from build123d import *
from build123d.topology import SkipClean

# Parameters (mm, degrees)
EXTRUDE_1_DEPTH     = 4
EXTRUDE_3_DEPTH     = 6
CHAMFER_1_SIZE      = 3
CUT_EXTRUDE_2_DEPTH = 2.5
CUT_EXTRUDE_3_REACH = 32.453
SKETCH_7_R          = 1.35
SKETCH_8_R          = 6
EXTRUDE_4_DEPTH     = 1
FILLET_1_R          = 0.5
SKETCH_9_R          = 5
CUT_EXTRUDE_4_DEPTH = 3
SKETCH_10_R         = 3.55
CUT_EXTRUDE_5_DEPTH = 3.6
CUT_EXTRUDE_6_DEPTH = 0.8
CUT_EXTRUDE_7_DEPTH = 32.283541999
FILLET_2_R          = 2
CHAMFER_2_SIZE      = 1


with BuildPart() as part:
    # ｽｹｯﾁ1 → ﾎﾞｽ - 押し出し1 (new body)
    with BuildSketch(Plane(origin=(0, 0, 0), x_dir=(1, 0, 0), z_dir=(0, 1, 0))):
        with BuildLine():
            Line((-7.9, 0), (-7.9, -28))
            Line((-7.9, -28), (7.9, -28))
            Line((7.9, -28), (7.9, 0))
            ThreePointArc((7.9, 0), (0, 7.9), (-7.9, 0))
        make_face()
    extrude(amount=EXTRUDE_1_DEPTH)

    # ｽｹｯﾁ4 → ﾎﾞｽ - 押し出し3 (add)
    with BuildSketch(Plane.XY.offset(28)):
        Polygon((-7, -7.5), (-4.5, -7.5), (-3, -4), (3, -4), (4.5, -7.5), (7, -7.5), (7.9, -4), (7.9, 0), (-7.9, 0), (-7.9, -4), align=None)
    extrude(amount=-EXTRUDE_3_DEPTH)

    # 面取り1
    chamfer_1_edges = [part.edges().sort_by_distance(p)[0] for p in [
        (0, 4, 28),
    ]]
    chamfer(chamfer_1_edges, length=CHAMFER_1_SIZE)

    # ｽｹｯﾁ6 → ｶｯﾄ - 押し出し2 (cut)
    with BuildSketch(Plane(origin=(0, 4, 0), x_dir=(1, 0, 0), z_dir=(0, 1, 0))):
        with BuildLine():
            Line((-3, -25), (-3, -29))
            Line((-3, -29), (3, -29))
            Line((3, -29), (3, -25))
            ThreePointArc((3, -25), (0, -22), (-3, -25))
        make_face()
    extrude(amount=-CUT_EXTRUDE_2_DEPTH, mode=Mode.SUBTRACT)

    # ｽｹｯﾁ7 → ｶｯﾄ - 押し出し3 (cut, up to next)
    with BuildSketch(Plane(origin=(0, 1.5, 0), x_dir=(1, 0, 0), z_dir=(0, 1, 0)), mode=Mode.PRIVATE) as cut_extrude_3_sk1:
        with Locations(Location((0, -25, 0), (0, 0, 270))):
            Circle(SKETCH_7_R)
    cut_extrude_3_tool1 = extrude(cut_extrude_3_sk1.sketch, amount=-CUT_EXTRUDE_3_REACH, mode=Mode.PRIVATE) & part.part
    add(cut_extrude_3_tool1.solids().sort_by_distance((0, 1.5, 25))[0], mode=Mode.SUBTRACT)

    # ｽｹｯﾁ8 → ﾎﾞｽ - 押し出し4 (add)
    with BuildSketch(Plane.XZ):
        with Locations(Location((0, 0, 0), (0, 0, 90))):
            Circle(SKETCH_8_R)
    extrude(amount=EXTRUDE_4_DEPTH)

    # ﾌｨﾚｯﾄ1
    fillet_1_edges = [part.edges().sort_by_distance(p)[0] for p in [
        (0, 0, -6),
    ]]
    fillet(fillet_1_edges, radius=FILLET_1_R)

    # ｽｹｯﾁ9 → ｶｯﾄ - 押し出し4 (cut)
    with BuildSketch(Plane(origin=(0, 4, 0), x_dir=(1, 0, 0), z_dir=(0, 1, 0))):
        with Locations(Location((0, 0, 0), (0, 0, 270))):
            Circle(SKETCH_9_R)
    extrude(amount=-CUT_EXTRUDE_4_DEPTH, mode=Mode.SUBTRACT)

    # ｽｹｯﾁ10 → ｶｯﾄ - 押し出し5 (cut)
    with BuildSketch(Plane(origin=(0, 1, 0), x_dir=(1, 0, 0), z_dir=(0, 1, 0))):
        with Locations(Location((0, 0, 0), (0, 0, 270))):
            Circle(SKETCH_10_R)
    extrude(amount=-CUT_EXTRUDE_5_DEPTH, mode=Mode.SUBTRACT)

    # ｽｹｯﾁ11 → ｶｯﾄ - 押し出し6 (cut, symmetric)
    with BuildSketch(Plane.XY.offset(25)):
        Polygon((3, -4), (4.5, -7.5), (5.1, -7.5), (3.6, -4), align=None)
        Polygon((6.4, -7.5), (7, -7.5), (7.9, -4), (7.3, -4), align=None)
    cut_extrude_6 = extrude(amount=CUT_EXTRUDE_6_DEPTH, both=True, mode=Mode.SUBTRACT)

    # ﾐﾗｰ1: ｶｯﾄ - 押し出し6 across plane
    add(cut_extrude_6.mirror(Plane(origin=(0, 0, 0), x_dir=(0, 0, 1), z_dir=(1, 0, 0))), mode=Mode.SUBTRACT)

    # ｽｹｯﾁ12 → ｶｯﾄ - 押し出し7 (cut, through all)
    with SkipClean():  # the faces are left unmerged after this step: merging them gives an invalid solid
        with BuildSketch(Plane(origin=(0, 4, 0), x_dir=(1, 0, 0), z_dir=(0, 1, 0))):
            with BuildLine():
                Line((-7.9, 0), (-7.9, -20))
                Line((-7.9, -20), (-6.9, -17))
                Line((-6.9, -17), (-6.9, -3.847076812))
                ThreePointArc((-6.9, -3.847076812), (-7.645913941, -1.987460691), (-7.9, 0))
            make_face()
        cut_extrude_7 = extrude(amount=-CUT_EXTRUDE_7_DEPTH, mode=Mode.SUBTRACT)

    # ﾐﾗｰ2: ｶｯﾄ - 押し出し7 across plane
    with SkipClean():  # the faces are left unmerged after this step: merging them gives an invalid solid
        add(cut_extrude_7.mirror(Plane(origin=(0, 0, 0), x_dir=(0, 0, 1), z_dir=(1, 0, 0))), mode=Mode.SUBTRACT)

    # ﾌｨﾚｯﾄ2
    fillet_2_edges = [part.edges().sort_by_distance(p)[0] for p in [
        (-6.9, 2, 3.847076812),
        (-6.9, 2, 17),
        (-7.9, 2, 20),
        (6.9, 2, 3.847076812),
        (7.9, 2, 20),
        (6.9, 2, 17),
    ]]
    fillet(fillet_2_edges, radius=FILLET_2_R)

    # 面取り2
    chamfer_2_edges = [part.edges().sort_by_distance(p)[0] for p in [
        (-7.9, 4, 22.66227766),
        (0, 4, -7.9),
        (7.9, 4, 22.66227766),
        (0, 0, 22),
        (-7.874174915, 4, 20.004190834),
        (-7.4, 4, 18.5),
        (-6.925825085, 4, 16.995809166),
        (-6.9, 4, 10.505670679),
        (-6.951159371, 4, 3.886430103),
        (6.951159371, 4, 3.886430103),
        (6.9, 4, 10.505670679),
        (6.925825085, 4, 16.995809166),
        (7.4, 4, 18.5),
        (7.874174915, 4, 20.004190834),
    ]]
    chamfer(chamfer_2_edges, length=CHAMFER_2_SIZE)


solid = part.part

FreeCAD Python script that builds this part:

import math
import FreeCAD as App
import Part
import Sketcher

V = App.Vector
Q = App.Units.Quantity


def edges_at(feature, points):
    """Names of the edges that pass closest to the given points."""
    edges = feature.Shape.Edges
    near = lambda p: min(range(len(edges)), key=lambda i: edges[i].distToShape(Part.Vertex(*p))[0])
    return sorted({f"Edge{near(p) + 1}" for p in points})


def add_polygon(sketch, points):
    """Adds a closed chain of lines whose ends are joined by coincident constraints."""
    first, n = sketch.GeometryCount, len(points)
    for a, b in zip(points, points[1:] + points[:1]):
        sketch.addGeometry(Part.LineSegment(App.Vector(*a, 0), App.Vector(*b, 0)), False)
    for i in range(n):
        sketch.addConstraint(Sketcher.Constraint("Coincident", first + i, 2, first + (i + 1) % n, 1))

doc = App.newDocument("Part")
params = doc.addObject("Spreadsheet::Sheet", "Params")
for row, (alias, value) in enumerate([
    ("sketch1_radius", "7.9 mm"),
    ("sketch1_height", "28 mm"),
    ("pad1_length", "4 mm"),
    ("sketch2_width", "6 mm"),
    ("sketch2_height", "4 mm"),
    ("sketch2_width2", "2.5 mm"),
    ("sketch2_width3", "15.8 mm"),
    ("pad2_length", "6 mm"),
    ("chamfer_size", "3 mm"),
    ("sketch3_radius", "3 mm"),
    ("sketch3_height", "4 mm"),
    ("pocket1_length", "2.5 mm"),
    ("sketch4_diameter", "2.7 mm"),
    ("sketch5_diameter", "12 mm"),
    ("pad3_length", "1 mm"),
    ("fillet_radius", "0.5 mm"),
    ("sketch6_diameter", "10 mm"),
    ("pocket3_length", "3 mm"),
    ("sketch7_diameter", "7.1 mm"),
    ("pocket4_length", "3.6 mm"),
    ("sketch8_width", "0.6 mm"),
    ("pocket5_length", "1.6 mm"),
    ("sketch9_radius", "7.9 mm"),
    ("sketch9_height", "20 mm"),
    ("fillet2_radius", "2 mm"),
    ("chamfer2_size", "1 mm"),
], start=1):
    params.set(f"A{row}", alias)
    params.set(f"B{row}", "=" + value)
    params.setAlias(f"B{row}", alias)

body = doc.addObject("PartDesign::Body", "Body")

sketch1 = body.newObject("Sketcher::SketchObject", "Sketch")
sketch1.AttachmentSupport = (doc.getObject("XZ_Plane"), [""])
sketch1.MapMode = "FlatFace"
sketch1.addGeometry(Part.LineSegment(V(-7.9, 0, 0), V(-7.9, 28, 0)), False)
sketch1.addGeometry(Part.LineSegment(V(-7.9, 28, 0), V(7.9, 28, 0)), False)
sketch1.addGeometry(Part.LineSegment(V(7.9, 28, 0), V(7.9, 0, 0)), False)
sketch1.addGeometry(Part.ArcOfCircle(Part.Circle(V(0, 0, 0), V(0, 0, 1), 7.9), math.radians(180), math.radians(360)), False)
sketch1.addConstraint(Sketcher.Constraint("Coincident", 0, 2, 1, 1))
sketch1.addConstraint(Sketcher.Constraint("Coincident", 1, 2, 2, 1))
sketch1.addConstraint(Sketcher.Constraint("Tangent", 2, 2, 3, 2))
sketch1.addConstraint(Sketcher.Constraint("Tangent", 3, 1, 0, 1))
sketch1.addConstraint(Sketcher.Constraint("Vertical", 0))
sketch1.addConstraint(Sketcher.Constraint("Horizontal", 1))
sketch1.addConstraint(Sketcher.Constraint("Vertical", 2))
sketch1.addConstraint(Sketcher.Constraint("Coincident", 3, 3, -1, 1))
sketch1.addConstraint(Sketcher.Constraint("Radius", 3, Q("7.9 mm")))
sketch1.addConstraint(Sketcher.Constraint("DistanceY", 0, 1, 0, 2, Q("28 mm")))
sketch1.setExpression("Constraints[8]", "Params.sketch1_radius")
sketch1.setExpression("Constraints[9]", "Params.sketch1_height")
pad1 = body.newObject("PartDesign::Pad", "Pad")
pad1.Profile = sketch1
pad1.setExpression("Length", "Params.pad1_length")
pad1.Reversed = True

sketch2 = body.newObject("Sketcher::SketchObject", "Sketch001")
sketch2.AttachmentSupport = (doc.getObject("XY_Plane"), [""])
sketch2.MapMode = "FlatFace"
sketch2.AttachmentOffset = App.Placement(V(0, 0, 28), App.Rotation())
add_polygon(sketch2, [(-7, -7.5), (-4.5, -7.5), (-3, -4), (3, -4), (4.5, -7.5), (7, -7.5), (7.9, -4), (7.9, 0), (-7.9, 0), (-7.9, -4)])
sketch2.addConstraint(Sketcher.Constraint("Horizontal", 0))
sketch2.addConstraint(Sketcher.Constraint("Horizontal", 2))
sketch2.addConstraint(Sketcher.Constraint("Horizontal", 4))
sketch2.addConstraint(Sketcher.Constraint("Vertical", 6))
sketch2.addConstraint(Sketcher.Constraint("Horizontal", 7))
sketch2.addConstraint(Sketcher.Constraint("Vertical", 8))
sketch2.addConstraint(Sketcher.Constraint("Symmetric", 6, 2, 7, 2, -1, 1))
sketch2.addConstraint(Sketcher.Constraint("Symmetric", 0, 2, 3, 2, -2))
sketch2.addConstraint(Sketcher.Constraint("Horizontal", 2, 2, 5, 2))
sketch2.addConstraint(Sketcher.Constraint("Horizontal", 5, 2, 8, 2))
sketch2.addConstraint(Sketcher.Constraint("Equal", 0, 4))
sketch2.addConstraint(Sketcher.Constraint("Equal", 1, 3))
sketch2.addConstraint(Sketcher.Constraint("DistanceX", 2, 1, 2, 2, Q("6 mm")))
sketch2.addConstraint(Sketcher.Constraint("DistanceY", 6, 1, 6, 2, Q("4 mm")))
sketch2.addConstraint(Sketcher.Constraint("DistanceX", 0, 1, 0, 2, Q("2.5 mm")))
sketch2.addConstraint(Sketcher.Constraint("DistanceX", 7, 2, 7, 1, Q("15.8 mm")))
sketch2.addConstraint(Sketcher.Constraint("DistanceX", -1, 1, 4, 2, Q("7 mm")))
sketch2.addConstraint(Sketcher.Constraint("DistanceY", 0, 2, -1, 1, Q("7.5 mm")))
sketch2.setExpression("Constraints[22]", "Params.sketch2_width")
sketch2.setExpression("Constraints[23]", "Params.sketch2_height")
sketch2.setExpression("Constraints[24]", "Params.sketch2_width2")
sketch2.setExpression("Constraints[25]", "Params.sketch2_width3")
pad2 = body.newObject("PartDesign::Pad", "Pad001")
pad2.Profile = sketch2
pad2.setExpression("Length", "Params.pad2_length")
pad2.Reversed = True
doc.recompute()

chamfer = body.newObject("PartDesign::Chamfer", "Chamfer")
chamfer.Base = (pad2, edges_at(pad2, [(0, 4, 28)]))
chamfer.setExpression("Size", "Params.chamfer_size")

sketch3 = body.newObject("Sketcher::SketchObject", "Sketch002")
sketch3.AttachmentSupport = (doc.getObject("XZ_Plane"), [""])
sketch3.MapMode = "FlatFace"
sketch3.AttachmentOffset = App.Placement(V(0, 0, -4), App.Rotation())
sketch3.addGeometry(Part.LineSegment(V(-3, 25, 0), V(-3, 29, 0)), False)
sketch3.addGeometry(Part.LineSegment(V(-3, 29, 0), V(3, 29, 0)), False)
sketch3.addGeometry(Part.LineSegment(V(3, 29, 0), V(3, 25, 0)), False)
sketch3.addGeometry(Part.ArcOfCircle(Part.Circle(V(0, 25, 0), V(0, 0, 1), 3), math.radians(180), math.radians(360)), False)
sketch3.addConstraint(Sketcher.Constraint("Coincident", 0, 2, 1, 1))
sketch3.addConstraint(Sketcher.Constraint("Coincident", 1, 2, 2, 1))
sketch3.addConstraint(Sketcher.Constraint("Tangent", 2, 2, 3, 2))
sketch3.addConstraint(Sketcher.Constraint("Tangent", 3, 1, 0, 1))
sketch3.addConstraint(Sketcher.Constraint("Vertical", 0))
sketch3.addConstraint(Sketcher.Constraint("Horizontal", 1))
sketch3.addConstraint(Sketcher.Constraint("Vertical", 2))
sketch3.addConstraint(Sketcher.Constraint("PointOnObject", 3, 3, -2))
sketch3.addConstraint(Sketcher.Constraint("Radius", 3, Q("3 mm")))
sketch3.addConstraint(Sketcher.Constraint("DistanceY", 0, 1, 0, 2, Q("4 mm")))
sketch3.addConstraint(Sketcher.Constraint("DistanceY", -1, 1, 3, 3, Q("25 mm")))
sketch3.setExpression("Constraints[8]", "Params.sketch3_radius")
sketch3.setExpression("Constraints[9]", "Params.sketch3_height")
pocket1 = body.newObject("PartDesign::Pocket", "Pocket")
pocket1.Profile = sketch3
pocket1.setExpression("Length", "Params.pocket1_length")
pocket1.Reversed = True

sketch4 = body.newObject("Sketcher::SketchObject", "Sketch003")
sketch4.AttachmentSupport = (doc.getObject("XZ_Plane"), [""])
sketch4.MapMode = "FlatFace"
sketch4.AttachmentOffset = App.Placement(V(0, 0, -1.5), App.Rotation())
sketch4.addGeometry(Part.Circle(V(0, 25, 0), V(0, 0, 1), 1.35), False)
sketch4.addConstraint(Sketcher.Constraint("PointOnObject", 0, 3, -2))
sketch4.addConstraint(Sketcher.Constraint("Diameter", 0, Q("2.7 mm")))
sketch4.addConstraint(Sketcher.Constraint("DistanceY", -1, 1, 0, 3, Q("25 mm")))
sketch4.setExpression("Constraints[1]", "Params.sketch4_diameter")
pocket2 = body.newObject("PartDesign::Pocket", "Pocket001")
pocket2.Profile = sketch4
pocket2.Type = "UpToFirst"
pocket2.Reversed = True

sketch5 = body.newObject("Sketcher::SketchObject", "Sketch004")
sketch5.AttachmentSupport = (doc.getObject("XZ_Plane"), [""])
sketch5.MapMode = "FlatFace"
sketch5.addGeometry(Part.Circle(V(0, 0, 0), V(0, 0, 1), 6), False)
sketch5.addConstraint(Sketcher.Constraint("Coincident", 0, 3, -1, 1))
sketch5.addConstraint(Sketcher.Constraint("Diameter", 0, Q("12 mm")))
sketch5.setExpression("Constraints[1]", "Params.sketch5_diameter")
pad3 = body.newObject("PartDesign::Pad", "Pad002")
pad3.Profile = sketch5
pad3.setExpression("Length", "Params.pad3_length")
doc.recompute()

fillet = body.newObject("PartDesign::Fillet", "Fillet")
fillet.Base = (pad3, edges_at(pad3, [(0, 0, -6)]))
fillet.setExpression("Radius", "Params.fillet_radius")

sketch6 = body.newObject("Sketcher::SketchObject", "Sketch005")
sketch6.AttachmentSupport = (doc.getObject("XZ_Plane"), [""])
sketch6.MapMode = "FlatFace"
sketch6.AttachmentOffset = App.Placement(V(0, 0, -4), App.Rotation())
sketch6.addGeometry(Part.Circle(V(0, 0, 0), V(0, 0, 1), 5), False)
sketch6.addConstraint(Sketcher.Constraint("Coincident", 0, 3, -1, 1))
sketch6.addConstraint(Sketcher.Constraint("Diameter", 0, Q("10 mm")))
sketch6.setExpression("Constraints[1]", "Params.sketch6_diameter")
pocket3 = body.newObject("PartDesign::Pocket", "Pocket002")
pocket3.Profile = sketch6
pocket3.setExpression("Length", "Params.pocket3_length")
pocket3.Reversed = True

sketch7 = body.newObject("Sketcher::SketchObject", "Sketch006")
sketch7.AttachmentSupport = (doc.getObject("XZ_Plane"), [""])
sketch7.MapMode = "FlatFace"
sketch7.AttachmentOffset = App.Placement(V(0, 0, -1), App.Rotation())
sketch7.addGeometry(Part.Circle(V(0, 0, 0), V(0, 0, 1), 3.55), False)
sketch7.addConstraint(Sketcher.Constraint("Coincident", 0, 3, -1, 1))
sketch7.addConstraint(Sketcher.Constraint("Diameter", 0, Q("7.1 mm")))
sketch7.setExpression("Constraints[1]", "Params.sketch7_diameter")
pocket4 = body.newObject("PartDesign::Pocket", "Pocket003")
pocket4.Profile = sketch7
pocket4.setExpression("Length", "Params.pocket4_length")
pocket4.Reversed = True

sketch8 = body.newObject("Sketcher::SketchObject", "Sketch007")
sketch8.AttachmentSupport = (doc.getObject("XY_Plane"), [""])
sketch8.MapMode = "FlatFace"
sketch8.AttachmentOffset = App.Placement(V(0, 0, 25), App.Rotation())
add_polygon(sketch8, [(3, -4), (4.5, -7.5), (5.1, -7.5), (3.6, -4)])
add_polygon(sketch8, [(6.4, -7.5), (7, -7.5), (7.9, -4), (7.3, -4)])
sketch8.addConstraint(Sketcher.Constraint("Horizontal", 1))
sketch8.addConstraint(Sketcher.Constraint("Horizontal", 3))
sketch8.addConstraint(Sketcher.Constraint("Horizontal", 4))
sketch8.addConstraint(Sketcher.Constraint("Horizontal", 6))
sketch8.addConstraint(Sketcher.Constraint("Parallel", 0, 2))
sketch8.addConstraint(Sketcher.Constraint("Parallel", 5, 7))
sketch8.addConstraint(Sketcher.Constraint("Horizontal", 1, 2, 4, 2))
sketch8.addConstraint(Sketcher.Constraint("Horizontal", 3, 2, 5, 2))
sketch8.addConstraint(Sketcher.Constraint("Equal", 3, 4))
sketch8.addConstraint(Sketcher.Constraint("DistanceX", 1, 1, 1, 2, Q("0.6 mm")))
sketch8.addConstraint(Sketcher.Constraint("DistanceY", 2, 2, -1, 1, Q("4 mm")))
sketch8.addConstraint(Sketcher.Constraint("DistanceX", -1, 1, 3, 2, Q("3 mm")))
sketch8.addConstraint(Sketcher.Constraint("DistanceX", -1, 1, 4, 2, Q("7 mm")))
sketch8.addConstraint(Sketcher.Constraint("DistanceX", -1, 1, 0, 2, Q("4.5 mm")))
sketch8.addConstraint(Sketcher.Constraint("DistanceY", 0, 2, -1, 1, Q("7.5 mm")))
sketch8.addConstraint(Sketcher.Constraint("DistanceX", -1, 1, 5, 2, Q("7.9 mm")))
sketch8.setExpression("Constraints[17]", "Params.sketch8_width")
pocket5 = body.newObject("PartDesign::Pocket", "Pocket004")
pocket5.Profile = sketch8
pocket5.setExpression("Length", "Params.pocket5_length")
pocket5.Midplane = True
doc.recompute()

mirrored = body.newObject("PartDesign::Mirrored", "Mirrored")
mirrored.Originals = [pocket5]
mirrored.MirrorPlane = (doc.getObject("YZ_Plane"), [""])
body.Tip = mirrored

sketch9 = body.newObject("Sketcher::SketchObject", "Sketch008")
sketch9.AttachmentSupport = (doc.getObject("XZ_Plane"), [""])
sketch9.MapMode = "FlatFace"
sketch9.AttachmentOffset = App.Placement(V(0, 0, -4), App.Rotation())
sketch9.addGeometry(Part.LineSegment(V(-7.9, 0, 0), V(-7.9, 20, 0)), False)
sketch9.addGeometry(Part.LineSegment(V(-7.9, 20, 0), V(-6.9, 17, 0)), False)
sketch9.addGeometry(Part.LineSegment(V(-6.9, 17, 0), V(-6.9, 3.847077, 0)), False)
sketch9.addGeometry(Part.ArcOfCircle(Part.Circle(V(0, 0, 0), V(0, 0, 1), 7.9), math.radians(150.858263), math.radians(180)), False)
sketch9.addConstraint(Sketcher.Constraint("Coincident", 0, 2, 1, 1))
sketch9.addConstraint(Sketcher.Constraint("Coincident", 1, 2, 2, 1))
sketch9.addConstraint(Sketcher.Constraint("Coincident", 2, 2, 3, 1))
sketch9.addConstraint(Sketcher.Constraint("Tangent", 3, 2, 0, 1))
sketch9.addConstraint(Sketcher.Constraint("Vertical", 0))
sketch9.addConstraint(Sketcher.Constraint("Vertical", 2))
sketch9.addConstraint(Sketcher.Constraint("Coincident", 3, 3, -1, 1))
sketch9.addConstraint(Sketcher.Constraint("Radius", 3, Q("7.9 mm")))
sketch9.addConstraint(Sketcher.Constraint("DistanceY", 0, 1, 0, 2, Q("20 mm")))
sketch9.addConstraint(Sketcher.Constraint("DistanceY", -1, 1, 1, 2, Q("17 mm")))
sketch9.addConstraint(Sketcher.Constraint("DistanceX", 0, 2, 1, 2, Q("1 mm")))
sketch9.setExpression("Constraints[7]", "Params.sketch9_radius")
sketch9.setExpression("Constraints[8]", "Params.sketch9_height")
pocket6 = body.newObject("PartDesign::Pocket", "Pocket005")
pocket6.Profile = sketch9
pocket6.Type = "ThroughAll"
pocket6.Reversed = True
doc.recompute()

mirrored2 = body.newObject("PartDesign::Mirrored", "Mirrored001")
mirrored2.Originals = [pocket6]
mirrored2.MirrorPlane = (doc.getObject("YZ_Plane"), [""])
body.Tip = mirrored2
doc.recompute()

fillet2 = body.newObject("PartDesign::Fillet", "Fillet001")
fillet2.Base = (mirrored2, edges_at(mirrored2, [
    (-6.9, 2, 3.847),
    (-6.9, 2, 17),
    (-7.9, 2, 20),
    (6.9, 2, 3.847),
    (7.9, 2, 20),
    (6.9, 2, 17),
]))
fillet2.setExpression("Radius", "Params.fillet2_radius")
doc.recompute()

chamfer2 = body.newObject("PartDesign::Chamfer", "Chamfer001")
chamfer2.Base = (fillet2, edges_at(fillet2, [
    (-7.9, 4, 22.662),
    (0, 4, -7.9),
    (7.9, 4, 22.662),
    (0, 0, 22),
    (-7.874, 4, 20.004),
    (-7.4, 4, 18.5),
    (-6.926, 4, 16.996),
    (-6.9, 4, 10.506),
    (-6.951, 4, 3.886),
    (6.951, 4, 3.886),
    (6.9, 4, 10.506),
    (6.926, 4, 16.996),
    (7.4, 4, 18.5),
    (7.874, 4, 20.004),
]))
chamfer2.setExpression("Size", "Params.chamfer2_size")

doc.recompute()
